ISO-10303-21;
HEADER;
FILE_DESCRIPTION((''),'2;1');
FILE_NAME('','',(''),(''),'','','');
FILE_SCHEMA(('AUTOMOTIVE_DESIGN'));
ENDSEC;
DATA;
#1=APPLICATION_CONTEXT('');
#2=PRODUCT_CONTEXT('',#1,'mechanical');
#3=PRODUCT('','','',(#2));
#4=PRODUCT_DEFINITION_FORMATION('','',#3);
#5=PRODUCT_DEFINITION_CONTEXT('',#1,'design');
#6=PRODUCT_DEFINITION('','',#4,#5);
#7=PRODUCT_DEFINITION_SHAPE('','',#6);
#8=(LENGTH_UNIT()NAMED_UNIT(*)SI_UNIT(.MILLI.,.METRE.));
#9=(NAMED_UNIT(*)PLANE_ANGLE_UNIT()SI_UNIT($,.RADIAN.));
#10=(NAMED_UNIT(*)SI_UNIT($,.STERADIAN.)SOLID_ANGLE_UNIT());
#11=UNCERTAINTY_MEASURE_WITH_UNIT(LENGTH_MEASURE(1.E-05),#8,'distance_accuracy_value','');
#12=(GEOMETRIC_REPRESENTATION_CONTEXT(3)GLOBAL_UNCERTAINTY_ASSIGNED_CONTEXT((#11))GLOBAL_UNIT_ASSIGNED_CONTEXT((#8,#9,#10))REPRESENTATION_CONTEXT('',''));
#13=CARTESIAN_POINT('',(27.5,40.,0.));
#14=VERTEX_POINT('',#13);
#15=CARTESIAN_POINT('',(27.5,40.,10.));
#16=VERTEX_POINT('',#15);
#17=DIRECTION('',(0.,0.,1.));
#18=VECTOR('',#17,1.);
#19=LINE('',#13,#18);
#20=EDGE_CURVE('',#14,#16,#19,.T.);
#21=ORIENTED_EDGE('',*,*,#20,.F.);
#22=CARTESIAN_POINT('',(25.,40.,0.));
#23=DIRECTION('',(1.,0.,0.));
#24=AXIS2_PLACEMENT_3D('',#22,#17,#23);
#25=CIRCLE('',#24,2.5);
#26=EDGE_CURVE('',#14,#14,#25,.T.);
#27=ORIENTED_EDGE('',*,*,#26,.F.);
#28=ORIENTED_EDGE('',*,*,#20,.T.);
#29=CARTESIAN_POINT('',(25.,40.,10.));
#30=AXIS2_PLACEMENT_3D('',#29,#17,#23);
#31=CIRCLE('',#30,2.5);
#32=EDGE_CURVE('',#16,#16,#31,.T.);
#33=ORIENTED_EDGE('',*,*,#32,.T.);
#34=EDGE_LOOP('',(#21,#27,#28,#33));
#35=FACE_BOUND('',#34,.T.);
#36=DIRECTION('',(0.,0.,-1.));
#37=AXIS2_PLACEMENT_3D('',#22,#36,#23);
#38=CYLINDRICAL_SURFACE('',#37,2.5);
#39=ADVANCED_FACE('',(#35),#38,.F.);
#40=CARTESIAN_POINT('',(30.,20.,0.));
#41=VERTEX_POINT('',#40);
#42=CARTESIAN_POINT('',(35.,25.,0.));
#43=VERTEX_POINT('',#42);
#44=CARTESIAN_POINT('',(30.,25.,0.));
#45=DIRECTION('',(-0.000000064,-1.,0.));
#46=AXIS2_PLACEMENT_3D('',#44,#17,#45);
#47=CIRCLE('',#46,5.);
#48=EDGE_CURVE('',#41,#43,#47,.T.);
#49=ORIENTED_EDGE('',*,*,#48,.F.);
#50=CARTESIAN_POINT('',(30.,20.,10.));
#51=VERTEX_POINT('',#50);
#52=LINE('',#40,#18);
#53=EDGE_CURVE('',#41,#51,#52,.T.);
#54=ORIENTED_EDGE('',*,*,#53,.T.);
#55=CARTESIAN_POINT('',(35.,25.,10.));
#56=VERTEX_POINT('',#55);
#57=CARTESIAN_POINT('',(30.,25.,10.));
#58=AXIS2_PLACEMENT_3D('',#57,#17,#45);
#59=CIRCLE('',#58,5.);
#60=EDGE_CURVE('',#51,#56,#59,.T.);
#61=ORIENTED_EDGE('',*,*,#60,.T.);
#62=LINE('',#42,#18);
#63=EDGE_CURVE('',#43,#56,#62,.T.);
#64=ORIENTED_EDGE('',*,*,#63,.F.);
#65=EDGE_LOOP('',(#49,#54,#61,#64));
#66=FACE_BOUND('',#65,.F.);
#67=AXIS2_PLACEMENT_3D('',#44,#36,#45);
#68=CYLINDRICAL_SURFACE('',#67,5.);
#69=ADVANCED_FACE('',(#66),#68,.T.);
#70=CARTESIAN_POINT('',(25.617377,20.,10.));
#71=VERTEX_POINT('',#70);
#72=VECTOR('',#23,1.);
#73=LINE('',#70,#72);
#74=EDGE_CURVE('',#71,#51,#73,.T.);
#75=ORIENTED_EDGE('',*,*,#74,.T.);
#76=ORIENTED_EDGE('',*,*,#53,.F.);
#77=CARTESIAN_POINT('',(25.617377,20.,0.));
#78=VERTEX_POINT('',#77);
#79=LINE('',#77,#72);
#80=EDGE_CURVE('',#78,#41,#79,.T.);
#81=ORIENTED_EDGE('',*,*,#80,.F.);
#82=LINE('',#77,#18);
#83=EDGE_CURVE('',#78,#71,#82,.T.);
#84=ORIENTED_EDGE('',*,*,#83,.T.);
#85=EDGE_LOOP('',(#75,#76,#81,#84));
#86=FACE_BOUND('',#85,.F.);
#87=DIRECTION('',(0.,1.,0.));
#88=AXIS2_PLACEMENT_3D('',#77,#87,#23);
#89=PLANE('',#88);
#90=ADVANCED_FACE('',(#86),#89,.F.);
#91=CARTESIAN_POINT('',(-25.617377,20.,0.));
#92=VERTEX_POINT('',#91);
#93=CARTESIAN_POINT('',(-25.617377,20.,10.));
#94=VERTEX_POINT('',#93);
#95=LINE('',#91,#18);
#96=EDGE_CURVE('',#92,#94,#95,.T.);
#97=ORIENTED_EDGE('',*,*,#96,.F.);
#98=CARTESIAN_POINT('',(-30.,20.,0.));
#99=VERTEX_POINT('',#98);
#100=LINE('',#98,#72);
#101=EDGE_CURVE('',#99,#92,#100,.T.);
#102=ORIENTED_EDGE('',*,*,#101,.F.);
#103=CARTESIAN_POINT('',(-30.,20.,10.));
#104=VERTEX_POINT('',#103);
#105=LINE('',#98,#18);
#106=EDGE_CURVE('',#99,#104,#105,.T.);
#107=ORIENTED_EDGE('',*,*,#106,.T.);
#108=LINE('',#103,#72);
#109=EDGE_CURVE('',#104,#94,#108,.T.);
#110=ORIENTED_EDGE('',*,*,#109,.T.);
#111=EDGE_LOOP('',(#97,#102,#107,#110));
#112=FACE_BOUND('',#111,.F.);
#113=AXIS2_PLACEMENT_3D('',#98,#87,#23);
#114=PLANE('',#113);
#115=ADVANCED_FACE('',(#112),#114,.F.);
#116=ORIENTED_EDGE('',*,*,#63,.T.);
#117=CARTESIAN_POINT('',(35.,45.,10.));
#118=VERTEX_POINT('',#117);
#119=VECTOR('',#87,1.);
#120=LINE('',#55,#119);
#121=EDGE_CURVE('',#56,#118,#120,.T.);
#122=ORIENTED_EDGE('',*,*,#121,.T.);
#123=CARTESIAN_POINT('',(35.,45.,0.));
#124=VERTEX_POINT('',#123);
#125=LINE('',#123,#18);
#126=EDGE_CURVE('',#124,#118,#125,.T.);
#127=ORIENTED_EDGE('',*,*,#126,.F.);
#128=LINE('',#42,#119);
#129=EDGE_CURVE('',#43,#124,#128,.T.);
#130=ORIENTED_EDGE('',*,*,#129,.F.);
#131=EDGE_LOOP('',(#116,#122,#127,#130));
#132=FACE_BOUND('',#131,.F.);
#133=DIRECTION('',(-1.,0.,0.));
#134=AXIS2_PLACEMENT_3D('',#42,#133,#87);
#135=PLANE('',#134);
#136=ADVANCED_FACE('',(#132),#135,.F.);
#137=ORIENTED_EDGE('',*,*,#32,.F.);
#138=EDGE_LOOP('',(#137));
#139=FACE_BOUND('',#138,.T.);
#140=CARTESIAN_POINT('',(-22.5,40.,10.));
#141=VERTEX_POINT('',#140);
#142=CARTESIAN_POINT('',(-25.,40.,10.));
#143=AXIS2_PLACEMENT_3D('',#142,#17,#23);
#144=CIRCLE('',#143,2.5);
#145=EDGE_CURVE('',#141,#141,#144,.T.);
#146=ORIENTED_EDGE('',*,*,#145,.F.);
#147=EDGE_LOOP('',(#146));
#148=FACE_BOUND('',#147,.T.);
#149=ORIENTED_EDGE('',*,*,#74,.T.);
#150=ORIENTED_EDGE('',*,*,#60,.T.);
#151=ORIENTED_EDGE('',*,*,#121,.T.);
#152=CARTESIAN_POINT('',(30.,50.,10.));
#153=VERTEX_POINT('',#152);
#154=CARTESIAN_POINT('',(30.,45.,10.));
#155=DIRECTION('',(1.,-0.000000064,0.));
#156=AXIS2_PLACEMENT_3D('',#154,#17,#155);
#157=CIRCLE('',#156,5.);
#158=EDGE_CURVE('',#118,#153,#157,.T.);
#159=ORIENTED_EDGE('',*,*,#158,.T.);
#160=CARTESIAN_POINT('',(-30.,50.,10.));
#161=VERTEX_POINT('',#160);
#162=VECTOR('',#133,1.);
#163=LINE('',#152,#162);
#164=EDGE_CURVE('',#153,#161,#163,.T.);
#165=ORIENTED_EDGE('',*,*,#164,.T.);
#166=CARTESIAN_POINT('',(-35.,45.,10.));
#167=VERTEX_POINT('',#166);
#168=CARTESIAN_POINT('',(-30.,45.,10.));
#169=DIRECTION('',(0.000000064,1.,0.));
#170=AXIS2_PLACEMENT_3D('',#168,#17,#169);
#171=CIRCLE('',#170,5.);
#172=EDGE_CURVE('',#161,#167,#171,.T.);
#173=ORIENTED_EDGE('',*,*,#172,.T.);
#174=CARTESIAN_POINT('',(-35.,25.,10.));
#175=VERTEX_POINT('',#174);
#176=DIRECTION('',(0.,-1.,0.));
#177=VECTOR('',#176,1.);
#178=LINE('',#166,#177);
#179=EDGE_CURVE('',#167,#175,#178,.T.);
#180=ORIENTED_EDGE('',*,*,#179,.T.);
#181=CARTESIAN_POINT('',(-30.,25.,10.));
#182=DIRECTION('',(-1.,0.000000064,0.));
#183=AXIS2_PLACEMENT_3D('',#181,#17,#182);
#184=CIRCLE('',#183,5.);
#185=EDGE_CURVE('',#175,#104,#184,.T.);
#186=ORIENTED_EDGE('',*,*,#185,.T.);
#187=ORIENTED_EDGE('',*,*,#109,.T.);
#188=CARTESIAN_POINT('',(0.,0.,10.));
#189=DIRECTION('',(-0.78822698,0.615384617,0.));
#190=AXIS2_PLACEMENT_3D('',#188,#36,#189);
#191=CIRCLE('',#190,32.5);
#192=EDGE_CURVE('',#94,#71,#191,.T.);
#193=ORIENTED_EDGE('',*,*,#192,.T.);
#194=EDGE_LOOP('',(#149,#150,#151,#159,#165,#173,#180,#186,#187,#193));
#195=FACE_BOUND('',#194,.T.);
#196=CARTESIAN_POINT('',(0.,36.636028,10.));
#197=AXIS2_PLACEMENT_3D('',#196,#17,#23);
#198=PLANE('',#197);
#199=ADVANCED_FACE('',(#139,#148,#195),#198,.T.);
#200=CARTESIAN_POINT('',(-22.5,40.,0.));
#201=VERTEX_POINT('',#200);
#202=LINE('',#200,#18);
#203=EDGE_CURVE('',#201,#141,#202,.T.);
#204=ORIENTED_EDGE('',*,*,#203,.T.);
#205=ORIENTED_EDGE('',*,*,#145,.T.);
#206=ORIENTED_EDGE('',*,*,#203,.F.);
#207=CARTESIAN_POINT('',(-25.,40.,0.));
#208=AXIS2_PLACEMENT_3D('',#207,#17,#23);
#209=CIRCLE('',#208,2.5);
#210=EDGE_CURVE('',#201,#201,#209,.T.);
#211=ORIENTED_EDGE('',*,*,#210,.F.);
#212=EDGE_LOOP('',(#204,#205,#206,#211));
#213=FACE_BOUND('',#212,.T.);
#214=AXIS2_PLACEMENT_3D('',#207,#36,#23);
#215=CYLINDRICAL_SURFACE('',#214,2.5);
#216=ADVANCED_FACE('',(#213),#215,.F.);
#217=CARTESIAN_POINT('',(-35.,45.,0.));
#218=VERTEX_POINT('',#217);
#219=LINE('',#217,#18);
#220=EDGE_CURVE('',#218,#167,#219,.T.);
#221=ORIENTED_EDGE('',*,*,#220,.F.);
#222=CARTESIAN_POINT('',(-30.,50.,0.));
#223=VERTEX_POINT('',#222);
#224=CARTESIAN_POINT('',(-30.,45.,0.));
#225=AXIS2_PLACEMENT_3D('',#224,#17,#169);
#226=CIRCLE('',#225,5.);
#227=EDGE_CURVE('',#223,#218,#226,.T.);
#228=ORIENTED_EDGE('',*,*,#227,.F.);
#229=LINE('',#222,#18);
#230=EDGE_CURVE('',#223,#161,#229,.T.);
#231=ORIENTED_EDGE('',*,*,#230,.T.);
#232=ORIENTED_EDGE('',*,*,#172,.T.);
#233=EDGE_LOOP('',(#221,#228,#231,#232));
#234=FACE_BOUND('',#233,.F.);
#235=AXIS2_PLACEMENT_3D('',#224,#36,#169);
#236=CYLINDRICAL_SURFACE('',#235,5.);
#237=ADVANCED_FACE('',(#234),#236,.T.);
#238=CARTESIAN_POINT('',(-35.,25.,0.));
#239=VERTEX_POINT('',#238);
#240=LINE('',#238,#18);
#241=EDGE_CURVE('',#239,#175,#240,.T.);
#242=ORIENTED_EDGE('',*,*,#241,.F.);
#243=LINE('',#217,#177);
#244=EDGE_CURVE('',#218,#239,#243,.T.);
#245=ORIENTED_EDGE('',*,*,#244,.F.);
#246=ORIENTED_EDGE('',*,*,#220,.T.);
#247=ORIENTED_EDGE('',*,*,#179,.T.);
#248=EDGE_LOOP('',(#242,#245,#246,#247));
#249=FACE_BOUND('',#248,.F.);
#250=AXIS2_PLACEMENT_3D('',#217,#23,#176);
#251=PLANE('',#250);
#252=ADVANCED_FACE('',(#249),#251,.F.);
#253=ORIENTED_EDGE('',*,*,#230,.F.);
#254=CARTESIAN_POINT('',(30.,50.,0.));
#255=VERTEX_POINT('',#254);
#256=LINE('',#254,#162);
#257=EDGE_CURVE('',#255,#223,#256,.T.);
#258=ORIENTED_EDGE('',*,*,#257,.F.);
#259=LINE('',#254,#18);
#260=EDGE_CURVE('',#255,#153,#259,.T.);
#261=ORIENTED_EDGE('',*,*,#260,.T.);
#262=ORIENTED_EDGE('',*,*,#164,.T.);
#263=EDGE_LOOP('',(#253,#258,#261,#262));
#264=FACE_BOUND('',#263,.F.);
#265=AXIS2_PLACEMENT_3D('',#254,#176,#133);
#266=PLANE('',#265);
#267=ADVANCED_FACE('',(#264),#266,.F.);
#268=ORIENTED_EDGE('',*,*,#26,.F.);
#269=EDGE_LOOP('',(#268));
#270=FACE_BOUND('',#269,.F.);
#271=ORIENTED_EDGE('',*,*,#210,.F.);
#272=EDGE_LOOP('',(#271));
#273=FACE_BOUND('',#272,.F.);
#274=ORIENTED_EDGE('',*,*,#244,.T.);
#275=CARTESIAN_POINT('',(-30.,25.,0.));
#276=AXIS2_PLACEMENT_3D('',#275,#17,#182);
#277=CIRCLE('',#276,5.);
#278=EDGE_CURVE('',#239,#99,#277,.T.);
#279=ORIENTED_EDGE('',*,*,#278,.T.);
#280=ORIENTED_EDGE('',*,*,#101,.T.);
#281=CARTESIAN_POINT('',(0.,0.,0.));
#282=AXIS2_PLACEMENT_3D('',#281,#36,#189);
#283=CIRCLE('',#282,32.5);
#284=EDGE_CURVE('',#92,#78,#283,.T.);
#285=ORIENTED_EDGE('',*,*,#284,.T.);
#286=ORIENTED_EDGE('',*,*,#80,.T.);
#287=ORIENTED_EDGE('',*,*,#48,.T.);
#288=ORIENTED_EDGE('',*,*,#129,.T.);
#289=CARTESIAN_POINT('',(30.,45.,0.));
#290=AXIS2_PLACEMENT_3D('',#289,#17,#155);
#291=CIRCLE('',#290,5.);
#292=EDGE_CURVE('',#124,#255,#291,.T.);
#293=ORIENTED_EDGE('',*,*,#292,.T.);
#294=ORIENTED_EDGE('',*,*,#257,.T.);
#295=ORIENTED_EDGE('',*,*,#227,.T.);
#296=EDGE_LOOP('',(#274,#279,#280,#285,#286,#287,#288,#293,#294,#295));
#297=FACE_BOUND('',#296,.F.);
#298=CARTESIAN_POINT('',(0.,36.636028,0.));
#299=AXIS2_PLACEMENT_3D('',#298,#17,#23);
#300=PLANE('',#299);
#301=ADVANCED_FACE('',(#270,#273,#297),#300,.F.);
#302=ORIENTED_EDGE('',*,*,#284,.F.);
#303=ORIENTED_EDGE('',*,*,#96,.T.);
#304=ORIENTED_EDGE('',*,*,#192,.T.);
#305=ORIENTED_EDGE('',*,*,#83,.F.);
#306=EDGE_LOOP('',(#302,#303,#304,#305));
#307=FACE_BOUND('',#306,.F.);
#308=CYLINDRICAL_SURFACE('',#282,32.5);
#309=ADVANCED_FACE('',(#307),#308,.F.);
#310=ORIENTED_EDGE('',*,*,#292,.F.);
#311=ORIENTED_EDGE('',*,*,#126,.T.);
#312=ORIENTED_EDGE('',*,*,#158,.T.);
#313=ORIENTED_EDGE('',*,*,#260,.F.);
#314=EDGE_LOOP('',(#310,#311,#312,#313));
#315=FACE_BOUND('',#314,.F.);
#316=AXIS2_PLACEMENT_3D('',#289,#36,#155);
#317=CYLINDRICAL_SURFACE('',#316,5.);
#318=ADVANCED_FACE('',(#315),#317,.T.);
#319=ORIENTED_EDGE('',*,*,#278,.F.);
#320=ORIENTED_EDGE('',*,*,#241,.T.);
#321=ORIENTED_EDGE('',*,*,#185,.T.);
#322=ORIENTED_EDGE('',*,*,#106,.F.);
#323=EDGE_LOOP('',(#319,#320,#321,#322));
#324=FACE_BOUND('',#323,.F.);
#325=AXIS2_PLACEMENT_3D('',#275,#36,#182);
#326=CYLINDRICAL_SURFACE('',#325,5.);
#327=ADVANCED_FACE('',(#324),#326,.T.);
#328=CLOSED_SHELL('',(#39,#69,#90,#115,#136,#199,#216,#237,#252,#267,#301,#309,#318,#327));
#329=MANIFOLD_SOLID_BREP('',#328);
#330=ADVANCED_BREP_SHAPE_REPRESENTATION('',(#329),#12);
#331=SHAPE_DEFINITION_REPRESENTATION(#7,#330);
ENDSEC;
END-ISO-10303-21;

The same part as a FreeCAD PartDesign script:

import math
import FreeCAD as App
import Part
import Sketcher

V = App.Vector
Q = App.Units.Quantity

doc = App.newDocument("Part")
body = doc.addObject("PartDesign::Body", "Body")

sketch1 = doc.addObject("Sketcher::SketchObject", "Sketch")
body.addObject(sketch1)
sketch1.AttachmentSupport = (doc.XY_Plane, [""])
sketch1.MapMode = "FlatFace"
sketch1.addGeometry([
    Part.LineSegment(V(30, 50, 0), V(-30, 50, 0)),
    Part.ArcOfCircle(Part.Circle(V(-30, 45, 0), V(0, 0, 1), 5), math.radians(90), math.radians(180)),
    Part.LineSegment(V(-35, 45, 0), V(-35, 25, 0)),
    Part.ArcOfCircle(Part.Circle(V(-30, 25, 0), V(0, 0, 1), 5), math.radians(180), math.radians(270)),
    Part.LineSegment(V(-30, 20, 0), V(-25.6, 20, 0)),
    Part.ArcOfCircle(Part.Circle(V(0, 0, 0), V(0, 0, 1), 32.5), math.radians(38), math.radians(142)),
    Part.LineSegment(V(25.6, 20, 0), V(30, 20, 0)),
    Part.ArcOfCircle(Part.Circle(V(30, 25, 0), V(0, 0, 1), 5), math.radians(-90), math.radians(0)),
    Part.LineSegment(V(35, 25, 0), V(35, 45, 0)),
    Part.ArcOfCircle(Part.Circle(V(30, 45, 0), V(0, 0, 1), 5), math.radians(0), math.radians(90)),
    Part.Circle(V(-25, 40, 0), V(0, 0, 1), 2.5),
    Part.Circle(V(25, 40, 0), V(0, 0, 1), 2.5),
], False)
sketch1.addConstraint([
    Sketcher.Constraint("Tangent", 0, 2, 1, 1),
    Sketcher.Constraint("Tangent", 1, 2, 2, 1),
    Sketcher.Constraint("Tangent", 2, 2, 3, 1),
    Sketcher.Constraint("Tangent", 3, 2, 4, 1),
    Sketcher.Constraint("Coincident", 4, 2, 5, 2),
    Sketcher.Constraint("Coincident", 5, 1, 6, 1),
    Sketcher.Constraint("Tangent", 6, 2, 7, 1),
    Sketcher.Constraint("Tangent", 7, 2, 8, 1),
    Sketcher.Constraint("Tangent", 8, 2, 9, 1),
    Sketcher.Constraint("Tangent", 9, 2, 0, 1),
    Sketcher.Constraint("Horizontal", 0),
    Sketcher.Constraint("Vertical", 2),
    Sketcher.Constraint("Horizontal", 4),
    Sketcher.Constraint("Horizontal", 6),
    Sketcher.Constraint("Vertical", 8),
    Sketcher.Constraint("Coincident", 5, 3, -1, 1),
    Sketcher.Constraint("Equal", 1, 3),
    Sketcher.Constraint("Equal", 3, 7),
    Sketcher.Constraint("Equal", 7, 9),
    Sketcher.Constraint("Equal", 10, 11),
    Sketcher.Constraint("Symmetric", 3, 3, 7, 3, -2),
    Sketcher.Constraint("Symmetric", 10, 3, 11, 3, -2),
    Sketcher.Constraint("Diameter", 10, Q("5 mm")),
    Sketcher.Constraint("Radius", 1, Q("5 mm")),
    Sketcher.Constraint("Radius", 5, Q("32.5 mm")),
    Sketcher.Constraint("DistanceX", 0, 2, 0, 1, Q("60 mm")),
    Sketcher.Constraint("DistanceY", 2, 2, 2, 1, Q("20 mm")),
    Sketcher.Constraint("DistanceY", -1, 1, 1, 3, Q("45 mm")),
    Sketcher.Constraint("DistanceX", 10, 3, -1, 1, Q("25 mm")),
    Sketcher.Constraint("DistanceY", -1, 1, 10, 3, Q("40 mm")),
])
pad1 = doc.addObject("PartDesign::Pad", "Pad")
body.addObject(pad1)
pad1.Profile = sketch1
pad1.Length = 10

doc.recompute()
